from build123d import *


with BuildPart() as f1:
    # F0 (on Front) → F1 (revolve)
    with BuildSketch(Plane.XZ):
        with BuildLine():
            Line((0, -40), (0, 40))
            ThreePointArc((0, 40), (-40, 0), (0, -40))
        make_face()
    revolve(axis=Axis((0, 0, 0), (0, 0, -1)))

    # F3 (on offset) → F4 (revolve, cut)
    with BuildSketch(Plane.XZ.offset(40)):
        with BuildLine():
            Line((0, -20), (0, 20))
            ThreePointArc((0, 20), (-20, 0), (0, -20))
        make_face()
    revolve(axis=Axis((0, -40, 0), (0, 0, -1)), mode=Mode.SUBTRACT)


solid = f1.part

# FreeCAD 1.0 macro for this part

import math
import FreeCAD as App
import Part
import Sketcher
from FreeCAD import Vector
Q = App.Units.Quantity

doc = App.newDocument("Part")
body = doc.addObject("PartDesign::Body", "Body")

sketch1 = body.newObject("Sketcher::SketchObject", "Sketch")
sketch1.AttachmentSupport = (doc.getObject("XZ_Plane"), [""])
sketch1.MapMode = "FlatFace"
sketch1.addGeometry(Part.LineSegment(Vector(0, -40, 0), Vector(0, 40, 0)), False)
sketch1.addGeometry(Part.ArcOfCircle(Part.Circle(Vector(0, 0, 0), Vector(0, 0, 1), 40), math.radians(90), math.radians(270)), False)
sketch1.addConstraint(Sketcher.Constraint("Coincident", 0, 1, 1, 2))
sketch1.addConstraint(Sketcher.Constraint("Coincident", 1, 1, 0, 2))
sketch1.addConstraint(Sketcher.Constraint("Vertical", 0))
sketch1.addConstraint(Sketcher.Constraint("Coincident", 1, 3, -1, 1))
sketch1.addConstraint(Sketcher.Constraint("PointOnObject", 0, 1, -2))
sketch1.addConstraint(Sketcher.Constraint("Radius", 1, Q("40 mm")))
revolution = body.newObject("PartDesign::Revolution", "Revolution")
revolution.Profile = sketch1
revolution.ReferenceAxis = (sketch1, ["V_Axis"])
revolution.Angle = 360

sketch2 = body.newObject("Sketcher::SketchObject", "Sketch001")
sketch2.AttachmentSupport = (doc.getObject("XZ_Plane"), [""])
sketch2.MapMode = "FlatFace"
sketch2.AttachmentOffset = App.Placement(Vector(0, 0, 40), App.Rotation())
sketch2.addGeometry(Part.LineSegment(Vector(0, -20, 0), Vector(0, 20, 0)), False)
sketch2.addGeometry(Part.ArcOfCircle(Part.Circle(Vector(0, 0, 0), Vector(0, 0, 1), 20), math.radians(90), math.radians(270)), False)
sketch2.addConstraint(Sketcher.Constraint("Coincident", 0, 1, 1, 2))
sketch2.addConstraint(Sketcher.Constraint("Coincident", 1, 1, 0, 2))
sketch2.addConstraint(Sketcher.Constraint("Vertical", 0))
sketch2.addConstraint(Sketcher.Constraint("Coincident", 1, 3, -1, 1))
sketch2.addConstraint(Sketcher.Constraint("PointOnObject", 0, 1, -2))
sketch2.addConstraint(Sketcher.Constraint("Radius", 1, Q("20 mm")))
groove = body.newObject("PartDesign::Groove", "Groove")
groove.Profile = sketch2
groove.ReferenceAxis = (sketch2, ["V_Axis"])
groove.Angle = 360

doc.recompute()
